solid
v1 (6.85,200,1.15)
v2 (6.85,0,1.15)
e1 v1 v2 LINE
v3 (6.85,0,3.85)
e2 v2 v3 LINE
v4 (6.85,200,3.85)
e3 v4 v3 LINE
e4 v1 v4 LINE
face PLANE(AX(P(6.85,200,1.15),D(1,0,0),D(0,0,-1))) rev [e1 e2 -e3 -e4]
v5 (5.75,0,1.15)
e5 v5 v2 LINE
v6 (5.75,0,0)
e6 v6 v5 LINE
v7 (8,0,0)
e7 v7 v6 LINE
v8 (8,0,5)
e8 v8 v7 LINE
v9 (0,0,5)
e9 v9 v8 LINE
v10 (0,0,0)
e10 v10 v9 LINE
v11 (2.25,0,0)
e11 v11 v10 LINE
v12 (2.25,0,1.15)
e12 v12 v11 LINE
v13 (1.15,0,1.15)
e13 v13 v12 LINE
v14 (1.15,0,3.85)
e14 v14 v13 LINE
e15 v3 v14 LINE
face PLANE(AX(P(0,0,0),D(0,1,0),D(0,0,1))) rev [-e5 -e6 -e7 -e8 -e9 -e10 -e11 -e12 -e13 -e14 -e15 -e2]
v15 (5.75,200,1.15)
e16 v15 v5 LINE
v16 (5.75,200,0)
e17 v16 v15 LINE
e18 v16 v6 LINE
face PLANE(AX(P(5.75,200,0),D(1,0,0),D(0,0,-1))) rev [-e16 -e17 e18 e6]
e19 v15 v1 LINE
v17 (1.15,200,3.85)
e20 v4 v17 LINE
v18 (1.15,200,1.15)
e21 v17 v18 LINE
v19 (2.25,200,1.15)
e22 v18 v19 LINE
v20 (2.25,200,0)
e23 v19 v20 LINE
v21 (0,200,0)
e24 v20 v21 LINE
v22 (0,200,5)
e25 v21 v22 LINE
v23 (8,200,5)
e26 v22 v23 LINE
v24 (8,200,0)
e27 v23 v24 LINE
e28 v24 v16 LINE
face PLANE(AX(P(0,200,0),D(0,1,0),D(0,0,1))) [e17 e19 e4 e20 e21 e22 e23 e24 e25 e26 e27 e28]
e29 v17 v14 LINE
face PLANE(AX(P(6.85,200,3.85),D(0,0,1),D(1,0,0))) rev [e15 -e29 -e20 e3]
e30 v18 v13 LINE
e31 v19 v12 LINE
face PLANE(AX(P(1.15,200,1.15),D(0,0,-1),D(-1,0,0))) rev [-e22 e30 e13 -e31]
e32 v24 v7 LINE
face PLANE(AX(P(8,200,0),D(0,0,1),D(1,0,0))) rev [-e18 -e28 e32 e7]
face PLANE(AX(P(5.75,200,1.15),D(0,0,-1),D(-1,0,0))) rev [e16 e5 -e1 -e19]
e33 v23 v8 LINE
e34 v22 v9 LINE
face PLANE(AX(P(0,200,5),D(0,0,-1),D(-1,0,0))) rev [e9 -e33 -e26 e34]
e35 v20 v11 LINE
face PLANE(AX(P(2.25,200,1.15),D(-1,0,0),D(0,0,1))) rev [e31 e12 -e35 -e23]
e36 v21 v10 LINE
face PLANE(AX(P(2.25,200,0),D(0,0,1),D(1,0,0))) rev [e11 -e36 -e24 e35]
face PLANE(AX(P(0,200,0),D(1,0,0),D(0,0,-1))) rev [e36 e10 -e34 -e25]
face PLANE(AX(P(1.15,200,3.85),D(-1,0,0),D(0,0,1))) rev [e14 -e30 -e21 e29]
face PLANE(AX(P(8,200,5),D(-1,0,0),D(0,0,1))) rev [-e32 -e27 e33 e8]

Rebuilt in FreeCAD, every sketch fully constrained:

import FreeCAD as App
import Part
import Sketcher
from FreeCAD import Vector
Q = App.Units.Quantity

doc = App.newDocument("Part")
body = doc.addObject("PartDesign::Body", "Body")

sketch1 = body.newObject("Sketcher::SketchObject", "Sketch")
sketch1.AttachmentSupport = (doc.getObject("XZ_Plane"), [""])
sketch1.MapMode = "FlatFace"
sketch1.addGeometry(Part.LineSegment(Vector(0, 5, 0), Vector(8, 5, 0)), False)
sketch1.addGeometry(Part.LineSegment(Vector(8, 5, 0), Vector(8, 0, 0)), False)
sketch1.addGeometry(Part.LineSegment(Vector(8, 0, 0), Vector(5.8, 0, 0)), False)
sketch1.addGeometry(Part.LineSegment(Vector(5.8, 0, 0), Vector(5.8, 1.1, 0)), False)
sketch1.addGeometry(Part.LineSegment(Vector(5.8, 1.1, 0), Vector(6.8, 1.1, 0)), False)
sketch1.addGeometry(Part.LineSegment(Vector(6.8, 1.1, 0), Vector(6.8, 3.9, 0)), False)
sketch1.addGeometry(Part.LineSegment(Vector(6.8, 3.9, 0), Vector(1.1, 3.9, 0)), False)
sketch1.addGeometry(Part.LineSegment(Vector(1.1, 3.9, 0), Vector(1.1, 1.1, 0)), False)
sketch1.addGeometry(Part.LineSegment(Vector(1.1, 1.1, 0), Vector(2.2, 1.1, 0)), False)
sketch1.addGeometry(Part.LineSegment(Vector(2.2, 1.1, 0), Vector(2.2, 0, 0)), False)
sketch1.addGeometry(Part.LineSegment(Vector(2.2, 0, 0), Vector(0, 0, 0)), False)
sketch1.addGeometry(Part.LineSegment(Vector(0, 0, 0), Vector(0, 5, 0)), False)
sketch1.addConstraint(Sketcher.Constraint("Coincident", 0, 2, 1, 1))
sketch1.addConstraint(Sketcher.Constraint("Coincident", 1, 2, 2, 1))
sketch1.addConstraint(Sketcher.Constraint("Coincident", 2, 2, 3, 1))
sketch1.addConstraint(Sketcher.Constraint("Coincident", 3, 2, 4, 1))
sketch1.addConstraint(Sketcher.Constraint("Coincident", 4, 2, 5, 1))
sketch1.addConstraint(Sketcher.Constraint("Coincident", 5, 2, 6, 1))
sketch1.addConstraint(Sketcher.Constraint("Coincident", 6, 2, 7, 1))
sketch1.addConstraint(Sketcher.Constraint("Coincident", 7, 2, 8, 1))
sketch1.addConstraint(Sketcher.Constraint("Coincident", 8, 2, 9, 1))
sketch1.addConstraint(Sketcher.Constraint("Coincident", 9, 2, 10, 1))
sketch1.addConstraint(Sketcher.Constraint("Coincident", 10, 2, 11, 1))
sketch1.addConstraint(Sketcher.Constraint("Coincident", 11, 2, 0, 1))
sketch1.addConstraint(Sketcher.Constraint("Horizontal", 0))
sketch1.addConstraint(Sketcher.Constraint("Vertical", 1))
sketch1.addConstraint(Sketcher.Constraint("Horizontal", 2))
sketch1.addConstraint(Sketcher.Constraint("Vertical", 3))
sketch1.addConstraint(Sketcher.Constraint("Horizontal", 4))
sketch1.addConstraint(Sketcher.Constraint("Vertical", 5))
sketch1.addConstraint(Sketcher.Constraint("Horizontal", 6))
sketch1.addConstraint(Sketcher.Constraint("Vertical", 7))
sketch1.addConstraint(Sketcher.Constraint("Horizontal", 8))
sketch1.addConstraint(Sketcher.Constraint("Vertical", 9))
sketch1.addConstraint(Sketcher.Constraint("Horizontal", 10))
sketch1.addConstraint(Sketcher.Constraint("Vertical", 11))
sketch1.addConstraint(Sketcher.Constraint("Coincident", 10, 2, -1, 1))
sketch1.addConstraint(Sketcher.Constraint("PointOnObject", 1, 2, -1))
sketch1.addConstraint(Sketcher.Constraint("Horizontal", 4, 2, 7, 2))
sketch1.addConstraint(Sketcher.Constraint("Equal", 4, 8))
sketch1.addConstraint(Sketcher.Constraint("Equal", 2, 10))
sketch1.addConstraint(Sketcher.Constraint("DistanceX", 0, 1, 0, 2, Q("8 mm")))
sketch1.addConstraint(Sketcher.Constraint("DistanceY", 1, 2, 1, 1, Q("5 mm")))
sketch1.addConstraint(Sketcher.Constraint("DistanceX", 4, 1, 4, 2, Q("1.1 mm")))
sketch1.addConstraint(Sketcher.Constraint("DistanceX", 6, 2, 6, 1, Q("5.7 mm")))
sketch1.addConstraint(Sketcher.Constraint("DistanceY", 5, 1, 5, 2, Q("2.7 mm")))
sketch1.addConstraint(Sketcher.Constraint("DistanceY", 3, 1, 3, 2, Q("1.15 mm")))
pad1 = body.newObject("PartDesign::Pad", "Pad")
pad1.Profile = sketch1
pad1.Length = 200
pad1.Reversed = True

doc.recompute()
